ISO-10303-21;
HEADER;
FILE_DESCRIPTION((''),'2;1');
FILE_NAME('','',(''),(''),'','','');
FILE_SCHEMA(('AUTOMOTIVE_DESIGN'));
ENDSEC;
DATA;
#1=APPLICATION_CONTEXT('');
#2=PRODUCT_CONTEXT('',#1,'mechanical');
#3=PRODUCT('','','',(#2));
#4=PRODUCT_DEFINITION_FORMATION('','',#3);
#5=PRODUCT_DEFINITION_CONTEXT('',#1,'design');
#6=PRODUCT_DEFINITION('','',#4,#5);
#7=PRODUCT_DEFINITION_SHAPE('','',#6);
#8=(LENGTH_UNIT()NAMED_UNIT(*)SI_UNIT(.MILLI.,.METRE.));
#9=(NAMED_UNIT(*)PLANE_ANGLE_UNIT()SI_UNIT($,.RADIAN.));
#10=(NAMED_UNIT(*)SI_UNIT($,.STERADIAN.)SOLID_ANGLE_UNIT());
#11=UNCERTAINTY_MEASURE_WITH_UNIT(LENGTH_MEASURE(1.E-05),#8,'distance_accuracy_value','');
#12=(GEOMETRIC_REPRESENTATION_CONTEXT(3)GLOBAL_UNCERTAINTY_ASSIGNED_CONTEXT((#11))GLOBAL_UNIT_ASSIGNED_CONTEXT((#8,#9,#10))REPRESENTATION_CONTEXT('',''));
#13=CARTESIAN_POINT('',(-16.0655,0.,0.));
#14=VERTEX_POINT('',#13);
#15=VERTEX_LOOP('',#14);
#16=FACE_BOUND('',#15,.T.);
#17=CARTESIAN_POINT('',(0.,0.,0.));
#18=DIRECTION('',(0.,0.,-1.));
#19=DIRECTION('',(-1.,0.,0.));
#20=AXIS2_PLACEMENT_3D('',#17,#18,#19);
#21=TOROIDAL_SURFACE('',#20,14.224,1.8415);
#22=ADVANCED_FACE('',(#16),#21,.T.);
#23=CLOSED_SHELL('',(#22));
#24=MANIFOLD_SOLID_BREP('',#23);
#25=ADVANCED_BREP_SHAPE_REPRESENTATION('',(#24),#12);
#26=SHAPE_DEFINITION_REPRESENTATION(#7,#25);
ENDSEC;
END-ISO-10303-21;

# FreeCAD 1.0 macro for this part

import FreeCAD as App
import Part
import Sketcher
from FreeCAD import Vector
Q = App.Units.Quantity

doc = App.newDocument("Part")
body = doc.addObject("PartDesign::Body", "Body")

# Sketch on XZ plane
sketch1 = doc.addObject("Sketcher::SketchObject", "Sketch")
body.addObject(sketch1)
sketch1.AttachmentSupport = (doc.XZ_Plane, [""])
sketch1.MapMode = "FlatFace"
sketch1.addGeometry(Part.Circle(Vector(14.224, 0, 0), Vector(0, 0, 1), 1.8415), False)
sketch1.addConstraint(Sketcher.Constraint("PointOnObject", 0, 3, -1))
sketch1.addConstraint(Sketcher.Constraint("Diameter", 0, Q("0.145 in")))
sketch1.addConstraint(Sketcher.Constraint("DistanceX", -1, 1, 0, 3, Q("0.56 in")))
revolution = doc.addObject("PartDesign::Revolution", "Revolution")
body.addObject(revolution)
revolution.Profile = sketch1
revolution.ReferenceAxis = (sketch1, ["V_Axis"])
revolution.Angle = 360

doc.recompute()
